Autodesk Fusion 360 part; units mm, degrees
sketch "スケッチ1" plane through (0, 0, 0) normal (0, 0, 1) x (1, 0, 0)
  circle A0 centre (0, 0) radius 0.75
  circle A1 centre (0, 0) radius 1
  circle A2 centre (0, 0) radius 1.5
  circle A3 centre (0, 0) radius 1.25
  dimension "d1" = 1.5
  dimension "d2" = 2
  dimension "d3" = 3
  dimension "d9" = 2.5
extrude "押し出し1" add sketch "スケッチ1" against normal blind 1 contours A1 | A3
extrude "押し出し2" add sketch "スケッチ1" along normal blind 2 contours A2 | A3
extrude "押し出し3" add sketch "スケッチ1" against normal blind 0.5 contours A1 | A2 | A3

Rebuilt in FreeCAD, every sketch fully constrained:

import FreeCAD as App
import Part
import Sketcher

V = App.Vector

doc = App.newDocument("Part")
params = doc.addObject("Spreadsheet::Sheet", "Params")
for row, (alias, value) in enumerate([
    ("sketch1_diameter", "2.5 mm"),
    ("sketch1_diameter2", "1.5 mm"),
    ("pad1_length", "1 mm"),
    ("sketch2_diameter", "3 mm"),
    ("sketch2_diameter2", "2 mm"),
    ("pad2_length", "2 mm"),
    ("sketch3_diameter", "3 mm"),
    ("sketch3_diameter2", "1.5 mm"),
    ("pad3_length", "0.5 mm"),
], start=1):
    params.set(f"A{row}", alias)
    params.set(f"B{row}", "=" + value)
    params.setAlias(f"B{row}", alias)

body = doc.addObject("PartDesign::Body", "Body")

# Sketch on XY plane
sketch1 = body.newObject("Sketcher::SketchObject", "Sketch")
sketch1.AttachmentSupport = (doc.getObject("XY_Plane"), [""])
sketch1.MapMode = "FlatFace"
sketch1.addGeometry([
    Part.Circle(V(0, 0, 0), V(0, 0, 1), 1.25),
    Part.Circle(V(0, 0, 0), V(0, 0, 1), 0.75),
], False)
sketch1.addConstraint([
    Sketcher.Constraint("Coincident", 0, 3, -1, 1),
    Sketcher.Constraint("Coincident", 1, 3, -1, 1),
    Sketcher.Constraint("Diameter", 0, 2.5),
    Sketcher.Constraint("Diameter", 1, 1.5),
])
sketch1.setExpression("Constraints[2]", "Params.sketch1_diameter")
sketch1.setExpression("Constraints[3]", "Params.sketch1_diameter2")
pad1 = body.newObject("PartDesign::Pad", "Pad")
pad1.Profile = sketch1
pad1.setExpression("Length", "Params.pad1_length")
pad1.Reversed = True

# Sketch on XY plane
sketch2 = body.newObject("Sketcher::SketchObject", "Sketch001")
sketch2.AttachmentSupport = (doc.getObject("XY_Plane"), [""])
sketch2.MapMode = "FlatFace"
sketch2.addGeometry([
    Part.Circle(V(0, 0, 0), V(0, 0, 1), 1.5),
    Part.Circle(V(0, 0, 0), V(0, 0, 1), 1),
], False)
sketch2.addConstraint([
    Sketcher.Constraint("Coincident", 0, 3, -1, 1),
    Sketcher.Constraint("Coincident", 1, 3, -1, 1),
    Sketcher.Constraint("Diameter", 0, 3.0),
    Sketcher.Constraint("Diameter", 1, 2.0),
])
sketch2.setExpression("Constraints[2]", "Params.sketch2_diameter")
sketch2.setExpression("Constraints[3]", "Params.sketch2_diameter2")
pad2 = body.newObject("PartDesign::Pad", "Pad001")
pad2.Profile = sketch2
pad2.setExpression("Length", "Params.pad2_length")

# Sketch on XY plane
sketch3 = body.newObject("Sketcher::SketchObject", "Sketch002")
sketch3.AttachmentSupport = (doc.getObject("XY_Plane"), [""])
sketch3.MapMode = "FlatFace"
sketch3.addGeometry([
    Part.Circle(V(0, 0, 0), V(0, 0, 1), 1.5),
    Part.Circle(V(0, 0, 0), V(0, 0, 1), 0.75),
], False)
sketch3.addConstraint([
    Sketcher.Constraint("Coincident", 0, 3, -1, 1),
    Sketcher.Constraint("Coincident", 1, 3, -1, 1),
    Sketcher.Constraint("Diameter", 0, 3.0),
    Sketcher.Constraint("Diameter", 1, 1.5),
])
sketch3.setExpression("Constraints[2]", "Params.sketch3_diameter")
sketch3.setExpression("Constraints[3]", "Params.sketch3_diameter2")
pad3 = body.newObject("PartDesign::Pad", "Pad002")
pad3.Profile = sketch3
pad3.setExpression("Length", "Params.pad3_length")
pad3.Reversed = True

doc.recompute()
